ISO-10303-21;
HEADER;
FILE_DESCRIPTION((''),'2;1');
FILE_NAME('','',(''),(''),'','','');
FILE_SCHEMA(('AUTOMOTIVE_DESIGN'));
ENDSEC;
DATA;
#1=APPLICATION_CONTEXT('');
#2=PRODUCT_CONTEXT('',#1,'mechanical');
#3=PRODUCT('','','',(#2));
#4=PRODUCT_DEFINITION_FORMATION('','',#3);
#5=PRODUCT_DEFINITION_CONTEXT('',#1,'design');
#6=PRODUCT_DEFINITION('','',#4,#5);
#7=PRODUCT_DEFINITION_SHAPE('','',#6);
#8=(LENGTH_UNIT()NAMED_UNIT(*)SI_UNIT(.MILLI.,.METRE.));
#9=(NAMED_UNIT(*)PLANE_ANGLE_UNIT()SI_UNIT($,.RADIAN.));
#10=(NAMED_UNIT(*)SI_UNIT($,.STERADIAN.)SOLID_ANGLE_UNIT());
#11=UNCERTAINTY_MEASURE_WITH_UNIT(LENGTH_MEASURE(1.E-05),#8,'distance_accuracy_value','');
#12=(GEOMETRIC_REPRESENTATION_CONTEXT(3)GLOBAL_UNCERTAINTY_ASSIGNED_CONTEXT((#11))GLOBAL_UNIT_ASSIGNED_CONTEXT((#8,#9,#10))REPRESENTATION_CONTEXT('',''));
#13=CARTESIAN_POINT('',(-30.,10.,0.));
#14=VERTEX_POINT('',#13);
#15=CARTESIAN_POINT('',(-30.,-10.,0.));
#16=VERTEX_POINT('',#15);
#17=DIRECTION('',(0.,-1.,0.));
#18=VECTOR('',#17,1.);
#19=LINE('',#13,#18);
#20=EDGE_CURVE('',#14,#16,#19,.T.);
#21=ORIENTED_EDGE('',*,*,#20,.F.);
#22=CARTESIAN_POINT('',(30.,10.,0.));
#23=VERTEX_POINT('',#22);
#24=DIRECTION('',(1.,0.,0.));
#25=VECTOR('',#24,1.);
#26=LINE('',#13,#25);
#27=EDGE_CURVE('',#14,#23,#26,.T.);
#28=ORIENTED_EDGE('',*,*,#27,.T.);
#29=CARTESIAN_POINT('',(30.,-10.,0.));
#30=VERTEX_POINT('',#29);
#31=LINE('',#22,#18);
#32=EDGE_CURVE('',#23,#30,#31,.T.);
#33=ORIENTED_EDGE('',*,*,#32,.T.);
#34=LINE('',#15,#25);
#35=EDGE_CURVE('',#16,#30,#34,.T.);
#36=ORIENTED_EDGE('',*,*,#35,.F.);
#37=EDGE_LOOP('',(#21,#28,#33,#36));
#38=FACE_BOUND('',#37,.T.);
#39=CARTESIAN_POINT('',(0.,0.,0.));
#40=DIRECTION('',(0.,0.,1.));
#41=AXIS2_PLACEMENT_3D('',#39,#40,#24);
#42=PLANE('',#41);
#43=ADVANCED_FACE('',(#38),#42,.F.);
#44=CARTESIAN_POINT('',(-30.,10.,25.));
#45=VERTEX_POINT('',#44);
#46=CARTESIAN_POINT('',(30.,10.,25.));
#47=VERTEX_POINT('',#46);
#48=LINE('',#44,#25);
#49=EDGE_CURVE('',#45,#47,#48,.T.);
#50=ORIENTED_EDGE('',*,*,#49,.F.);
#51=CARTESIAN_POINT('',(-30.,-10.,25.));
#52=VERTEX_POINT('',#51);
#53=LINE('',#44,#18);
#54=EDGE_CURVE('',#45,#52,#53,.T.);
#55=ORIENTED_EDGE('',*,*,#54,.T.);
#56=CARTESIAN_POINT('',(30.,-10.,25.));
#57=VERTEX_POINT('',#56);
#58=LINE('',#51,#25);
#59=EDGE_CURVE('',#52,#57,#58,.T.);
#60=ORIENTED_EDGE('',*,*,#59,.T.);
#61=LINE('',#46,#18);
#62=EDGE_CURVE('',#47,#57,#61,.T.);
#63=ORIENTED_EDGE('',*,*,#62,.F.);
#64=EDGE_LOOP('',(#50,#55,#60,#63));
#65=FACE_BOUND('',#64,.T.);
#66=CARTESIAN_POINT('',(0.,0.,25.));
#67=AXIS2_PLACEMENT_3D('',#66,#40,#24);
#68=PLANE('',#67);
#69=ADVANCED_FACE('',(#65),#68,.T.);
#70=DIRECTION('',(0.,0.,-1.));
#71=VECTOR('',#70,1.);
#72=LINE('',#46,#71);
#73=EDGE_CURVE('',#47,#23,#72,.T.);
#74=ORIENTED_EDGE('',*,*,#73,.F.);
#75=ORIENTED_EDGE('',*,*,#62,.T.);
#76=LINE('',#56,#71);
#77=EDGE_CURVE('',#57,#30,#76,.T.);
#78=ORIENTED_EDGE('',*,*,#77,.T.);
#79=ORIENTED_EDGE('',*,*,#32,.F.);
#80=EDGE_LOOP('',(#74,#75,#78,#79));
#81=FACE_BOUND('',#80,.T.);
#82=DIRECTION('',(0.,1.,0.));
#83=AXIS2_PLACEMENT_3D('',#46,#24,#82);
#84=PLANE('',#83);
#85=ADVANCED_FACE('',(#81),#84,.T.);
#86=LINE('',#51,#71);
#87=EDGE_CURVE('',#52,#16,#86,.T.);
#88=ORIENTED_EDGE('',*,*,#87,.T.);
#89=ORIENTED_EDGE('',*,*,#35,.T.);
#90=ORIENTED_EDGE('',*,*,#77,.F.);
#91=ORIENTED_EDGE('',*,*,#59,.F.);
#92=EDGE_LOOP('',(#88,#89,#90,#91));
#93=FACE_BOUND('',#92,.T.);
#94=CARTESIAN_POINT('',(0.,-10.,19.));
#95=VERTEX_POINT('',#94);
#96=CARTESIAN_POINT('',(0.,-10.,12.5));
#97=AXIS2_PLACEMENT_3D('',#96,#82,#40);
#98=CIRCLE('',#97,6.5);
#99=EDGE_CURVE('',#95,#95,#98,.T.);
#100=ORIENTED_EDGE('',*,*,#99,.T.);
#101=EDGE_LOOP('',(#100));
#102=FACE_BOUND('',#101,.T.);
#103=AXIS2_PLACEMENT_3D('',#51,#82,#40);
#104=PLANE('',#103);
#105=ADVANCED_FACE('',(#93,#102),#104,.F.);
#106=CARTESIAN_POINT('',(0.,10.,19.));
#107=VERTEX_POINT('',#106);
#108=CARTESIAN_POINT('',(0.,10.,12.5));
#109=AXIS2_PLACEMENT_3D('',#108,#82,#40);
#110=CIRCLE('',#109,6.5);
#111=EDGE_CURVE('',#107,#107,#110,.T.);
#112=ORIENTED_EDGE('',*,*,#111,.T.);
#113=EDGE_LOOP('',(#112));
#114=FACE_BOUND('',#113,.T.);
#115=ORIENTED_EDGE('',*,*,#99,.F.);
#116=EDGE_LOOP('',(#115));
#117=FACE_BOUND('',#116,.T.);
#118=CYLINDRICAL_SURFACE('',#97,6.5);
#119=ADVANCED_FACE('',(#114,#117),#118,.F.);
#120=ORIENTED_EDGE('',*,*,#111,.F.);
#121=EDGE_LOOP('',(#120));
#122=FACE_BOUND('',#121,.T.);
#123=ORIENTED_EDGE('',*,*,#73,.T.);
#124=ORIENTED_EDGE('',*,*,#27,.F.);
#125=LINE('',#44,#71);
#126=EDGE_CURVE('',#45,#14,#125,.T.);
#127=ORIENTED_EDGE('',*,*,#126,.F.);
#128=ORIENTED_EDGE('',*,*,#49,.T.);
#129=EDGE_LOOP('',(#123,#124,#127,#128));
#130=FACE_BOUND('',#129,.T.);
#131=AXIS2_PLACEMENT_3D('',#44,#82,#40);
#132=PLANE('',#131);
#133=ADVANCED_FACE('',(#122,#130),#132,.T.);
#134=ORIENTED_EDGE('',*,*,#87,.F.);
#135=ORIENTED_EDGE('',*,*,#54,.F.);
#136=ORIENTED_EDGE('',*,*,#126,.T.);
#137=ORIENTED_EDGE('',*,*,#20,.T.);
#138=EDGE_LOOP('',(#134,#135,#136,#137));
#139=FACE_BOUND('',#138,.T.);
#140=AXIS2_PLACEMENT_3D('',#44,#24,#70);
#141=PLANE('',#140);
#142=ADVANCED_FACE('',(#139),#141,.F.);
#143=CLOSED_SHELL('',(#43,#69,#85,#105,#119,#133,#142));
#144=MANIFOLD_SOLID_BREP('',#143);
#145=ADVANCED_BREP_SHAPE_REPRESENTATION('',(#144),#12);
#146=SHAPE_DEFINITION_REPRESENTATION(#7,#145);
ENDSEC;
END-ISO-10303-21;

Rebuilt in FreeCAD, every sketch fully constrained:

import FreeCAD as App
import Part
import Sketcher

doc = App.newDocument("Part")
params = doc.addObject("Spreadsheet::Sheet", "Params")
for row, (alias, value) in enumerate([
    ("sketch1_width", "60 mm"),
    ("sketch1_height", "20 mm"),
    ("pad1_length", "25 mm"),
    ("sketch2_diameter", "13 mm"),
    ("pocket1_length", "20 mm"),
], start=1):
    params.set(f"A{row}", alias)
    params.set(f"B{row}", "=" + value)
    params.setAlias(f"B{row}", alias)

body = doc.addObject("PartDesign::Body", "Body")

# Sketch on XY plane
sketch1 = body.newObject("Sketcher::SketchObject", "Sketch")
sketch1.AttachmentSupport = (doc.getObject("XY_Plane"), [""])
sketch1.MapMode = "FlatFace"
sketch1.addGeometry([
    Part.LineSegment(App.Vector(-30, 10, 0), App.Vector(-30, -10, 0)),
    Part.LineSegment(App.Vector(-30, -10, 0), App.Vector(30, -10, 0)),
    Part.LineSegment(App.Vector(30, -10, 0), App.Vector(30, 10, 0)),
    Part.LineSegment(App.Vector(30, 10, 0), App.Vector(-30, 10, 0)),
], False)
sketch1.addConstraint([
    Sketcher.Constraint("Coincident", 0, 2, 1, 1),
    Sketcher.Constraint("Coincident", 1, 2, 2, 1),
    Sketcher.Constraint("Coincident", 2, 2, 3, 1),
    Sketcher.Constraint("Coincident", 3, 2, 0, 1),
    Sketcher.Constraint("Vertical", 0),
    Sketcher.Constraint("Horizontal", 1),
    Sketcher.Constraint("Vertical", 2),
    Sketcher.Constraint("Horizontal", 3),
    Sketcher.Constraint("Symmetric", 0, 2, 2, 2, -1, 1),
    Sketcher.Constraint("DistanceX", 1, 1, 1, 2, 60.0),
    Sketcher.Constraint("DistanceY", 0, 2, 0, 1, 20.0),
])
sketch1.setExpression("Constraints[9]", "Params.sketch1_width")
sketch1.setExpression("Constraints[10]", "Params.sketch1_height")
pad1 = body.newObject("PartDesign::Pad", "Pad")
pad1.Profile = sketch1
pad1.setExpression("Length", "Params.pad1_length")

# Sketch on XZ plane
sketch2 = body.newObject("Sketcher::SketchObject", "Sketch001")
sketch2.AttachmentSupport = (doc.getObject("XZ_Plane"), [""])
sketch2.MapMode = "FlatFace"
sketch2.AttachmentOffset = App.Placement(App.Vector(0, 0, -10), App.Rotation())
sketch2.addGeometry(Part.Circle(App.Vector(0, 12, 0), App.Vector(0, 0, 1), 6), False)
sketch2.addConstraint([
    Sketcher.Constraint("PointOnObject", 0, 3, -2),
    Sketcher.Constraint("Diameter", 0, 13.0),
    Sketcher.Constraint("DistanceY", -1, 1, 0, 3, 12.5),
])
sketch2.setExpression("Constraints[1]", "Params.sketch2_diameter")
pocket1 = body.newObject("PartDesign::Pocket", "Pocket")
pocket1.Profile = sketch2
pocket1.setExpression("Length", "Params.pocket1_length")
pocket1.Reversed = True

doc.recompute()
